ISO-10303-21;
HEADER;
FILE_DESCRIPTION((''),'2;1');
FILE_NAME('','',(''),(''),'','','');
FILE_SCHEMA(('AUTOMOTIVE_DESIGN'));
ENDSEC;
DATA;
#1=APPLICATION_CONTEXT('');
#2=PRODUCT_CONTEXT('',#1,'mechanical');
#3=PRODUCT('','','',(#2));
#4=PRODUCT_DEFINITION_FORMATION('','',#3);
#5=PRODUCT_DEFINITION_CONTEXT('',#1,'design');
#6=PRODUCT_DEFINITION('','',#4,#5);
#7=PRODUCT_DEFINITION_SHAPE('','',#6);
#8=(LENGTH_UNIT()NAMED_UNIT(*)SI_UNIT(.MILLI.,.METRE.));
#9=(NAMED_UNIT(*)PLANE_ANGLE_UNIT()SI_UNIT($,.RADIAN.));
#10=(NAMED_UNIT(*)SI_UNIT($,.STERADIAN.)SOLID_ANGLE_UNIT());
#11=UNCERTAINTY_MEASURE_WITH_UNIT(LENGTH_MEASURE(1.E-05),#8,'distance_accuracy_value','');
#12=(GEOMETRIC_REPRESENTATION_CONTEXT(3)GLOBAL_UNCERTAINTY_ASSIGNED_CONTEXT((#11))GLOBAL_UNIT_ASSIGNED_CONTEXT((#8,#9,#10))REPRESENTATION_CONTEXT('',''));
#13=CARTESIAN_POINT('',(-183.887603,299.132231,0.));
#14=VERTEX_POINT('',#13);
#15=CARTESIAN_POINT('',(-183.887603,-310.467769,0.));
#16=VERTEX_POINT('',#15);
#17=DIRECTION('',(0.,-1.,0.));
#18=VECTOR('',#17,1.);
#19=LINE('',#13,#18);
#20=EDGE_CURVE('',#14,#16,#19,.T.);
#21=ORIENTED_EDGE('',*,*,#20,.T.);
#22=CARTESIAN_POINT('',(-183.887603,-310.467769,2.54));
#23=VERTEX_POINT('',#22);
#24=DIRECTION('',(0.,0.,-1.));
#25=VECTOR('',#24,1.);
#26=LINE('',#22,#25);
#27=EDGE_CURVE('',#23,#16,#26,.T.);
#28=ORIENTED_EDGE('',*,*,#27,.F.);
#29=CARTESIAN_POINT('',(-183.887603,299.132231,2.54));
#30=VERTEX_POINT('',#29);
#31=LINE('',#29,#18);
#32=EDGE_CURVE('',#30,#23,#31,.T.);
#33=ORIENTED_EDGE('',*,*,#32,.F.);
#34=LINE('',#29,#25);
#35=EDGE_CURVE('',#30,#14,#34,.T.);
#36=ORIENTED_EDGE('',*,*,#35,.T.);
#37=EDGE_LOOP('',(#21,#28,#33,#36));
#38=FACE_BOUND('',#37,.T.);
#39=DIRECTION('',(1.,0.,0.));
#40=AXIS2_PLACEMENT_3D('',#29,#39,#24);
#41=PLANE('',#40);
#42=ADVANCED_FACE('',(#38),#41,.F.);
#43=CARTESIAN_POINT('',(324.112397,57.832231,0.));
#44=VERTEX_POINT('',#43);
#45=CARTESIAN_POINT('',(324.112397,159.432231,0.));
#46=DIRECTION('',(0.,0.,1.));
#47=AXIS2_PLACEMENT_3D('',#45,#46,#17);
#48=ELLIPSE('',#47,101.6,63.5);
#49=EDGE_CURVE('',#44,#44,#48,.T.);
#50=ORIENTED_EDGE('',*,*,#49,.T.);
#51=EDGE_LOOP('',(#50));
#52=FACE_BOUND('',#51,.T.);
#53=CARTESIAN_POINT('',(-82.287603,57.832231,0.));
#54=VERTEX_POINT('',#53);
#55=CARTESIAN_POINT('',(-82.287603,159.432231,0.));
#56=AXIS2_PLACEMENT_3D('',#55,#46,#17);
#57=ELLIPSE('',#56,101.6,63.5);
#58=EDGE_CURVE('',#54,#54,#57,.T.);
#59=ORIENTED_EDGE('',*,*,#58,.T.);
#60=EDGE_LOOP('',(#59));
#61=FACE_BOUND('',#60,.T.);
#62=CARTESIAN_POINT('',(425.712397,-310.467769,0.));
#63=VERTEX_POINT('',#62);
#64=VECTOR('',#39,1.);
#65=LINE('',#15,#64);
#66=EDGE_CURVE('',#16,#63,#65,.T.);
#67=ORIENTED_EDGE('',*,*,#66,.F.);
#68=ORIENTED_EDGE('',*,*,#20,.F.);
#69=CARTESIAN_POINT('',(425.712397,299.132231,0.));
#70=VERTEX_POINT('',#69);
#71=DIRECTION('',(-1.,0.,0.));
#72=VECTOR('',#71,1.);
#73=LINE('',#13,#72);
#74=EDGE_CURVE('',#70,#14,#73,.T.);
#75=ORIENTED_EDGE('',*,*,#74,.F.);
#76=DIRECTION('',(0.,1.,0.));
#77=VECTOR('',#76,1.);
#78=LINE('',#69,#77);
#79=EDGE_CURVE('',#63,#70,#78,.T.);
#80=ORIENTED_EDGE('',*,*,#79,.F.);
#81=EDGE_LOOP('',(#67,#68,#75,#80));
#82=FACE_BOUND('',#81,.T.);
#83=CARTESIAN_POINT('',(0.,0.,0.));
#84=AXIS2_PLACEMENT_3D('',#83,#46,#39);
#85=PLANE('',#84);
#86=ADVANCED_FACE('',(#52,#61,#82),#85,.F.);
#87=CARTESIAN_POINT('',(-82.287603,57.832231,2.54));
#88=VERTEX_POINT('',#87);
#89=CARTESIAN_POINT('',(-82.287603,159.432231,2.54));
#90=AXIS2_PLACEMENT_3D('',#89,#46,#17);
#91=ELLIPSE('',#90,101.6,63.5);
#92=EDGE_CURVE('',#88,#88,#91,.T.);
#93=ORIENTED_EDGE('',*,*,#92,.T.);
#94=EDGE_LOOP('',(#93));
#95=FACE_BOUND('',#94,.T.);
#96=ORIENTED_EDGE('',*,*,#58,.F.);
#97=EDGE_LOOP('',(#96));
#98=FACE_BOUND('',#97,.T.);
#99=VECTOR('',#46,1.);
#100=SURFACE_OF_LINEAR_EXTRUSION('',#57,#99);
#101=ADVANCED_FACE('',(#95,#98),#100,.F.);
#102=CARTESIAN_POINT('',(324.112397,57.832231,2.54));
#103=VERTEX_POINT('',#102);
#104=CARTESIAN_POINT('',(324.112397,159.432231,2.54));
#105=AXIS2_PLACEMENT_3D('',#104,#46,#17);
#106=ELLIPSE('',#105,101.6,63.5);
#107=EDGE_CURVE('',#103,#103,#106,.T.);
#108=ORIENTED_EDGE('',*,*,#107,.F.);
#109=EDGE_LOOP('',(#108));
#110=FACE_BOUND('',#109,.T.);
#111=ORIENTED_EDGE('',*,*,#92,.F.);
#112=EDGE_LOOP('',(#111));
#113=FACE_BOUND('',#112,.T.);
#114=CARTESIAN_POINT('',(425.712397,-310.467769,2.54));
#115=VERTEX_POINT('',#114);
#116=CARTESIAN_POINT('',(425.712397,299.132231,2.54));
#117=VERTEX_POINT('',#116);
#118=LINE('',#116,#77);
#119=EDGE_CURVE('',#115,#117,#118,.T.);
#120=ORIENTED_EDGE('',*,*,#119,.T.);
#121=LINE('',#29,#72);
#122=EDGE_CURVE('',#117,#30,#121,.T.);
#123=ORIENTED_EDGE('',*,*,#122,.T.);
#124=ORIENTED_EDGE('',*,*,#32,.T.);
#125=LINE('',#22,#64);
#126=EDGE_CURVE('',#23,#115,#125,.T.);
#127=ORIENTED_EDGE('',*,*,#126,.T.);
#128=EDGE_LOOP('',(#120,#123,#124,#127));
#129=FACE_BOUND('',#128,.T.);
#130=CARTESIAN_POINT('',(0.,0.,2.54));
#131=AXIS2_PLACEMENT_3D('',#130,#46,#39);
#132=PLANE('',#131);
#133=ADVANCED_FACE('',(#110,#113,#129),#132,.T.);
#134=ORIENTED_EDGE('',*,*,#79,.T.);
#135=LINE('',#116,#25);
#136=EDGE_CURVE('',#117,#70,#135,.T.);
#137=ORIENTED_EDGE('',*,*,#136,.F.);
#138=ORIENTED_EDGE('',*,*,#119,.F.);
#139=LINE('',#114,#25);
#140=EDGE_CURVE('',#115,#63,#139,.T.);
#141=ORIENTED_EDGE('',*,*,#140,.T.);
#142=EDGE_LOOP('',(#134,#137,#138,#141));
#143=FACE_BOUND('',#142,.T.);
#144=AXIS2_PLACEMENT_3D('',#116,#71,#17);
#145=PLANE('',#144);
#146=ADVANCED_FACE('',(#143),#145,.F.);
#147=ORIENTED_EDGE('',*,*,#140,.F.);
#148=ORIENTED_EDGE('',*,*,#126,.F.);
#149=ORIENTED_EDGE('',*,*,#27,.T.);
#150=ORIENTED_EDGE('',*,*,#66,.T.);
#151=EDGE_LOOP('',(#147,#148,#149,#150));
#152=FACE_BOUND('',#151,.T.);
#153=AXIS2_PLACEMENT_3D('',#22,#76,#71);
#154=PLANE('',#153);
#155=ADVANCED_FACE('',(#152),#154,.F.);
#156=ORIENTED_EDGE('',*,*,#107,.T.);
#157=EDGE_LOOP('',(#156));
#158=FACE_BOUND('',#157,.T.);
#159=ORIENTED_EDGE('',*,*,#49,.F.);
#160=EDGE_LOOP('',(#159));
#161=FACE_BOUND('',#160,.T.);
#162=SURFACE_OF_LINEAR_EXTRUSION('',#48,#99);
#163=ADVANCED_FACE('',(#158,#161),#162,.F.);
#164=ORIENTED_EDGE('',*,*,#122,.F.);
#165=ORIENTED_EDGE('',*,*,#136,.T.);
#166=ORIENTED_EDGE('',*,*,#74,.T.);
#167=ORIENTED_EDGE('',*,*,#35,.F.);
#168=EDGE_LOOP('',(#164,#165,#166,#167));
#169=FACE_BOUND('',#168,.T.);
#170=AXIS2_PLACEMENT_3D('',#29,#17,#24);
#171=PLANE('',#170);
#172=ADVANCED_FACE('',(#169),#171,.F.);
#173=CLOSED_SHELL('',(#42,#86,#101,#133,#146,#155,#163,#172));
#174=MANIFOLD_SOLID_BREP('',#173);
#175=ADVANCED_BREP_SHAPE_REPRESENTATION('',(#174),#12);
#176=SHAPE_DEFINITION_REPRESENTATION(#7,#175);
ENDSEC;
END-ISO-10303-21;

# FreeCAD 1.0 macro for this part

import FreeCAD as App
import Part
import Sketcher
from FreeCAD import Vector
Q = App.Units.Quantity


def add_polygon(sketch, points):
    """Adds a closed chain of lines whose ends are joined by coincident constraints."""
    first, n = sketch.GeometryCount, len(points)
    for a, b in zip(points, points[1:] + points[:1]):
        sketch.addGeometry(Part.LineSegment(App.Vector(*a, 0), App.Vector(*b, 0)), False)
    for i in range(n):
        sketch.addConstraint(Sketcher.Constraint("Coincident", first + i, 2, first + (i + 1) % n, 1))

doc = App.newDocument("Part")
body = doc.addObject("PartDesign::Body", "Body")

# Sketch on XY plane
sketch1 = body.newObject("Sketcher::SketchObject", "Sketch")
sketch1.AttachmentSupport = (doc.getObject("XY_Plane"), [""])
sketch1.MapMode = "FlatFace"
add_polygon(sketch1, [(-184, 299), (-184, -310), (426, -310), (426, 299)])  # lines 0-3
sketch1.addConstraint([
    Sketcher.Constraint("Vertical", 0),
    Sketcher.Constraint("Horizontal", 1),
    Sketcher.Constraint("Vertical", 2),
    Sketcher.Constraint("Horizontal", 3),
    Sketcher.Constraint("Equal", 3, 0),
    Sketcher.Constraint("DistanceX", 1, 1, 1, 2, Q("24 in")),
    Sketcher.Constraint("DistanceY", 0, 2, -1, 1, Q("310.467769 mm")),
    Sketcher.Constraint("DistanceX", 0, 2, -1, 1, Q("183.887603 mm")),
])
pad1 = body.newObject("PartDesign::Pad", "Pad")
pad1.Profile = sketch1
pad1.Length = Q("0.1 in")

# Sketch on XY plane
sketch2 = body.newObject("Sketcher::SketchObject", "Sketch001")
sketch2.AttachmentSupport = (doc.getObject("XY_Plane"), [""])
sketch2.MapMode = "FlatFace"
sketch2.AttachmentOffset = App.Placement(Vector(0, 0, 0.1 * 25.4), App.Rotation())
sketch2.addGeometry([
    Part.Ellipse(Vector(-82.287603, 57.832231, 0), Vector(-18.787603, 159.432231, 0), Vector(-82.287603, 159.432231, 0)),
    Part.Ellipse(Vector(324.112397, 57.832231, 0), Vector(387.612397, 159.432231, 0), Vector(324.112397, 159.432231, 0)),
], False)
sketch2.addConstraint([
    Sketcher.Constraint("Block", 0),
    Sketcher.Constraint("Block", 1),
])
pocket1 = body.newObject("PartDesign::Pocket", "Pocket")
pocket1.Profile = sketch2
pocket1.Type = "ThroughAll"

doc.recompute()
